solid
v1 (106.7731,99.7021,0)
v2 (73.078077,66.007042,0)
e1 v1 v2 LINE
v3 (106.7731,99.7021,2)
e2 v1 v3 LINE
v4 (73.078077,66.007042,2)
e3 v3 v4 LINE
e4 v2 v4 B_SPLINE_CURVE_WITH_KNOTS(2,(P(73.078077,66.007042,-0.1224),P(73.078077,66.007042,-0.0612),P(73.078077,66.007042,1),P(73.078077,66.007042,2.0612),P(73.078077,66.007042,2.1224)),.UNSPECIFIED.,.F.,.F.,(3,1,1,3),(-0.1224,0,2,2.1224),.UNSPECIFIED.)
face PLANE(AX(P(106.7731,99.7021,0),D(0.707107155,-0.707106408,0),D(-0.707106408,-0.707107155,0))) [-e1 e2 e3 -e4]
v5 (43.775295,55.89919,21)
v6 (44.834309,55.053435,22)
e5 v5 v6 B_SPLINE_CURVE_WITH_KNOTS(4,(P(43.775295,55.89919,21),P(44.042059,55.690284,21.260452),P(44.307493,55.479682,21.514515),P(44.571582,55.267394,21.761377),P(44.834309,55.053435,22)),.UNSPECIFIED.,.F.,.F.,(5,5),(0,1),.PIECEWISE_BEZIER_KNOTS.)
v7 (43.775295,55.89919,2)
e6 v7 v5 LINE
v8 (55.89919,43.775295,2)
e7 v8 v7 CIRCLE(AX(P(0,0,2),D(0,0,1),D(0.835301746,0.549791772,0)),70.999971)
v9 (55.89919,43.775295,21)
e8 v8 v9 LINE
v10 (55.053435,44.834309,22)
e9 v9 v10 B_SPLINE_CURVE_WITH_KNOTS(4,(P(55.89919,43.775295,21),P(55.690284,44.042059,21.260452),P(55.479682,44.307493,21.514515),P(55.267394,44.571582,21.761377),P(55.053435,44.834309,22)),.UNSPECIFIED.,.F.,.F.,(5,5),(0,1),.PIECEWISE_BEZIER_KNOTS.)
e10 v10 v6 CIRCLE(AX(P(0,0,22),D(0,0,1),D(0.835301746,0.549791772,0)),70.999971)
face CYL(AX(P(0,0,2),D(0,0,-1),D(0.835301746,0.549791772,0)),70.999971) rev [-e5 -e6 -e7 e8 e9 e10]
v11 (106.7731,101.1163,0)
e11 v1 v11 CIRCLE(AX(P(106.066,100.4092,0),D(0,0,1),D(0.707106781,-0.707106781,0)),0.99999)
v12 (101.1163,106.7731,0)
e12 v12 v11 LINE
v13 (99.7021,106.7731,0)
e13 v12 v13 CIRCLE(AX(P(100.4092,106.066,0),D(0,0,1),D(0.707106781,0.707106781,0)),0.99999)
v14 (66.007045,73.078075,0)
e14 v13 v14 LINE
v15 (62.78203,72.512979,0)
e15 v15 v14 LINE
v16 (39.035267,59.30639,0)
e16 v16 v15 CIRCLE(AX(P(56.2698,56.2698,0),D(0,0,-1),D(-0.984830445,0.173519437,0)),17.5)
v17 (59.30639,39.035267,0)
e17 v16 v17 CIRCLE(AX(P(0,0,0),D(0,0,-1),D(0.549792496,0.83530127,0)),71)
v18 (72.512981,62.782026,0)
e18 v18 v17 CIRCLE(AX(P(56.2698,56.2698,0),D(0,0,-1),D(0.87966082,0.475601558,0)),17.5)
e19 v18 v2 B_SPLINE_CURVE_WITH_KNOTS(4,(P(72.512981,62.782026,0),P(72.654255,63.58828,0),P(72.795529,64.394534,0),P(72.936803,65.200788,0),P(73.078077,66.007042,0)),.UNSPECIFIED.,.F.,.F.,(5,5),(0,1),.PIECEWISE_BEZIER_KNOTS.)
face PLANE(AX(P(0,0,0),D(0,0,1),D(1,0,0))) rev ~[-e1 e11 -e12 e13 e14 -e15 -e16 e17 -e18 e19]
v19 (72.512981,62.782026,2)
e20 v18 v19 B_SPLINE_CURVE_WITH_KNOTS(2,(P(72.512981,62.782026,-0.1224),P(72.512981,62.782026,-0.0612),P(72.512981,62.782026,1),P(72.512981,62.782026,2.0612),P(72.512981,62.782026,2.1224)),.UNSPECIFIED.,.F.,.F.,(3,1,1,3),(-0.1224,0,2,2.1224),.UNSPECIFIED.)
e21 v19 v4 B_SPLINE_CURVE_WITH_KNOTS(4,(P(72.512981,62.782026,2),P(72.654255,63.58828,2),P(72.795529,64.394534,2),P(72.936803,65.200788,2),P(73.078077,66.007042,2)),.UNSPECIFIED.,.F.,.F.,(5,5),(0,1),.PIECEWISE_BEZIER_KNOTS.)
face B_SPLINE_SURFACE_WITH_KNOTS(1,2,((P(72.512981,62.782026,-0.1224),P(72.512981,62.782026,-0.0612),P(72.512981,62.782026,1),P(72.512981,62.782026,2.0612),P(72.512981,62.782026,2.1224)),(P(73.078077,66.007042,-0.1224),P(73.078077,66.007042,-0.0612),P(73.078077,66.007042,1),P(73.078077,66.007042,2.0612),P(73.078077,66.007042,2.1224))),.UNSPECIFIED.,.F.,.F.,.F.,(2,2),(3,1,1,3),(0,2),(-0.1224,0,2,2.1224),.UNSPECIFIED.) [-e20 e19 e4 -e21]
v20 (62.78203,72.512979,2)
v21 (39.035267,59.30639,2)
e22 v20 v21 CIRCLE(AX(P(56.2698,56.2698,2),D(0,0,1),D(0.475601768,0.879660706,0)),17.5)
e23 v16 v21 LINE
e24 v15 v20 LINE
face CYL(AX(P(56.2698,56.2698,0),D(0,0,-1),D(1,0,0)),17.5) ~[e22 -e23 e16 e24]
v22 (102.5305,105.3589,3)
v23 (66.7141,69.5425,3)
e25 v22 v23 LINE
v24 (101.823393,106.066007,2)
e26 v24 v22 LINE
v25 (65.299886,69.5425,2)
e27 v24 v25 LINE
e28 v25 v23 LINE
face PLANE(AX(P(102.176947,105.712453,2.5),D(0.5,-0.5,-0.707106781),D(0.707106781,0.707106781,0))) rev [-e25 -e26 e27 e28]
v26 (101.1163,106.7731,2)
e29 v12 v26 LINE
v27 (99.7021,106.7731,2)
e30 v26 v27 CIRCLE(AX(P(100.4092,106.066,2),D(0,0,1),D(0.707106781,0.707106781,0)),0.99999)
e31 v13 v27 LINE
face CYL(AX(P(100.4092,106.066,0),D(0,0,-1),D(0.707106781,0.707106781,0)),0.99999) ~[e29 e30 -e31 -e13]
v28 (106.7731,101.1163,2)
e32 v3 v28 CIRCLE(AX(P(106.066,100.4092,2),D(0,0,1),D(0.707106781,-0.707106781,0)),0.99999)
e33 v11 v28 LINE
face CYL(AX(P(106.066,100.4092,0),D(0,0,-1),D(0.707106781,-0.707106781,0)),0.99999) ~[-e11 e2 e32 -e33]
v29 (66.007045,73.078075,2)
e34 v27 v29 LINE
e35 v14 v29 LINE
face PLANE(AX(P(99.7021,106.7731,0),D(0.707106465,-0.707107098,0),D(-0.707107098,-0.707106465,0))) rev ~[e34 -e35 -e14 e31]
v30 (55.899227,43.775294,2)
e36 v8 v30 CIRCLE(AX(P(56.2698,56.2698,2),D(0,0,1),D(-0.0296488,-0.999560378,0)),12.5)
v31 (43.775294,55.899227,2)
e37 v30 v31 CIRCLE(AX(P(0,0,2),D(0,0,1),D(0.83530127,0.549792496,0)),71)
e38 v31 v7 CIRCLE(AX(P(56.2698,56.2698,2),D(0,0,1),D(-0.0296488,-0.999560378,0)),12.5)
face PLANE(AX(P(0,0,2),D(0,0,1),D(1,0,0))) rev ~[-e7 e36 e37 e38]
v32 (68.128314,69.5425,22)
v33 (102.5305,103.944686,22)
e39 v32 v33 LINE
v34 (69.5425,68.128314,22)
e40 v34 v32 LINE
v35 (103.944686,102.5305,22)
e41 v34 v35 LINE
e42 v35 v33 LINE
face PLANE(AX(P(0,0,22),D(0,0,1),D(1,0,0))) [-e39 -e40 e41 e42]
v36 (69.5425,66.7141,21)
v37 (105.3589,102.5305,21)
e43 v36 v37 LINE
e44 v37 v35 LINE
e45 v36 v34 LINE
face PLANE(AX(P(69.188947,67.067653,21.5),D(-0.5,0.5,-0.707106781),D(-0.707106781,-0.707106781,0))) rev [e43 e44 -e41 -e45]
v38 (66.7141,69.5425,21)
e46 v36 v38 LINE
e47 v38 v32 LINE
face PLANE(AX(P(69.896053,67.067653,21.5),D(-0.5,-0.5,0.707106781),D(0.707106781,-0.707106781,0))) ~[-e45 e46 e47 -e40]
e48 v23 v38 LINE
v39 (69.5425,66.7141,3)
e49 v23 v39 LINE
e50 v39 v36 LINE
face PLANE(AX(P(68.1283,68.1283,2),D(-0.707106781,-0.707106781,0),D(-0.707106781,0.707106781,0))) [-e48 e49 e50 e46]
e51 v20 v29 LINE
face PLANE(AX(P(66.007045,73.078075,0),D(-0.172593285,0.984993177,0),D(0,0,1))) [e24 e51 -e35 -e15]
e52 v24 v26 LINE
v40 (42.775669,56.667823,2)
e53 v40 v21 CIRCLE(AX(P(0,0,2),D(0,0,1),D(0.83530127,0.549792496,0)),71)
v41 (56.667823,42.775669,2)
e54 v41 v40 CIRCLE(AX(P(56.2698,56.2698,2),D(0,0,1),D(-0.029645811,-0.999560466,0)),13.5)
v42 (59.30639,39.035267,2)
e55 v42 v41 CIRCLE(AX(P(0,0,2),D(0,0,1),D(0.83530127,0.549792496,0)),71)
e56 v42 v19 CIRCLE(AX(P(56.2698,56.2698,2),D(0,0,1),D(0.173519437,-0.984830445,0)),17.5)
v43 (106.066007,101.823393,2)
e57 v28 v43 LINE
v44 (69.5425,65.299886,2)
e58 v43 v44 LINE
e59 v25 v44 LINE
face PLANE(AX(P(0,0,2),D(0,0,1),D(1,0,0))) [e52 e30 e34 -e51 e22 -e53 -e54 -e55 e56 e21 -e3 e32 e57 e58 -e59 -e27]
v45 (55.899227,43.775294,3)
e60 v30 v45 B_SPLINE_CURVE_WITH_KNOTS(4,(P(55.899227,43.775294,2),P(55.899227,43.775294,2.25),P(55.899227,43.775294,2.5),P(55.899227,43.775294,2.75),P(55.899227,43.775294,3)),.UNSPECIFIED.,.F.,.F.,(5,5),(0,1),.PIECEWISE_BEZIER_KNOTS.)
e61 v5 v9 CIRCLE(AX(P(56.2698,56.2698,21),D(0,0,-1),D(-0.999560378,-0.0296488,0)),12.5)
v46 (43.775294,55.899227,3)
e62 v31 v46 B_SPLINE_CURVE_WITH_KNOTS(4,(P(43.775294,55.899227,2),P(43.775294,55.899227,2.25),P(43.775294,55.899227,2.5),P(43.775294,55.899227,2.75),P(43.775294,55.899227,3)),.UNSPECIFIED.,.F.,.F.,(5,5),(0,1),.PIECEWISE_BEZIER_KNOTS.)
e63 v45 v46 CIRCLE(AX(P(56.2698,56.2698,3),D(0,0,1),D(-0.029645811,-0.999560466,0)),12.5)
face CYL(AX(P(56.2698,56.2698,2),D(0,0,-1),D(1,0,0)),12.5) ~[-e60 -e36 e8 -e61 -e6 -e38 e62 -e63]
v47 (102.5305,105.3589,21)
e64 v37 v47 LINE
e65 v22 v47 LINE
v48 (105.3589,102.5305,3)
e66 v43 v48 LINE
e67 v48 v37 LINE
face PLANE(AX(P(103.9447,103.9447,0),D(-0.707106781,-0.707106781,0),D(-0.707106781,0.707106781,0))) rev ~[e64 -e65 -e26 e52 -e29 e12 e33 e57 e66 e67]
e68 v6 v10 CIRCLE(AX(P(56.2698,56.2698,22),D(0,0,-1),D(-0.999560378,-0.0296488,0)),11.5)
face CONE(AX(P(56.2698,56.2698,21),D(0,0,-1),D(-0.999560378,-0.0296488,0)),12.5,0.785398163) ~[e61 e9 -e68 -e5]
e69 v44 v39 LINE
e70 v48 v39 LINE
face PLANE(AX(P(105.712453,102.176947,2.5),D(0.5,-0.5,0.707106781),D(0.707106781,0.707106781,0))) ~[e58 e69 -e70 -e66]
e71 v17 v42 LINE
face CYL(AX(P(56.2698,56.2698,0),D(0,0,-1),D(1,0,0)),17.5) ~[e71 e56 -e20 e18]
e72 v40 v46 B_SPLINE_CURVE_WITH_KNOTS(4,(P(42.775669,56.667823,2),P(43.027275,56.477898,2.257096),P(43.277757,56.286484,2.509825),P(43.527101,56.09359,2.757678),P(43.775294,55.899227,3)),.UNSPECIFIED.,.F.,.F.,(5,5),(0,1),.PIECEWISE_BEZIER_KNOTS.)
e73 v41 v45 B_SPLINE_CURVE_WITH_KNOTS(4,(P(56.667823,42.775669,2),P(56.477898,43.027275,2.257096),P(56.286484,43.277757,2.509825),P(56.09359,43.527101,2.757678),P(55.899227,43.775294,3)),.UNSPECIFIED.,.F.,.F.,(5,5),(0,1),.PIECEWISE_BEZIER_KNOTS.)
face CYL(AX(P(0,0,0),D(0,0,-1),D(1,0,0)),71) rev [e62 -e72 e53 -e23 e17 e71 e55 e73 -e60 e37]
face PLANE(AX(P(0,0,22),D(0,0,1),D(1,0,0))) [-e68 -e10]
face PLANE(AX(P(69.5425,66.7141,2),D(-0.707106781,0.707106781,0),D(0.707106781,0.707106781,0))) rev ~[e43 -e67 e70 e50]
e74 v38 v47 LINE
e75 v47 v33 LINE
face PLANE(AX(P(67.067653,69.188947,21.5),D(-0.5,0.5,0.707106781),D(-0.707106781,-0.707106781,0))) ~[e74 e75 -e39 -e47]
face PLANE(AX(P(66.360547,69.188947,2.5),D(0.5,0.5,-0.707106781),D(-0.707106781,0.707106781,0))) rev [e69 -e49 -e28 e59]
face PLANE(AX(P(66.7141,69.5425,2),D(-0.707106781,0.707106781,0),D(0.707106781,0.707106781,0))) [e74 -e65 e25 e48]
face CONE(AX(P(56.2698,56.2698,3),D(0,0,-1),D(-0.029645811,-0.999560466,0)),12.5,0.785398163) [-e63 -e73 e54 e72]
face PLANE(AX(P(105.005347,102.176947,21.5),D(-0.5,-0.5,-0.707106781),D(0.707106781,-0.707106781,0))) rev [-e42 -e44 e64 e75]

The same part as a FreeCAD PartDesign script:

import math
import FreeCAD as App
import Part
import Sketcher

V = App.Vector
Q = App.Units.Quantity


def edges_at(feature, points):
    """Names of the edges that pass closest to the given points."""
    edges = feature.Shape.Edges
    near = lambda p: min(range(len(edges)), key=lambda i: edges[i].distToShape(Part.Vertex(*p))[0])
    return sorted({f"Edge{near(p) + 1}" for p in points})

doc = App.newDocument("Part")
body = doc.addObject("PartDesign::Body", "Body")

# Sketch on XY plane
sketch1 = body.newObject("Sketcher::SketchObject", "Sketch")
sketch1.AttachmentSupport = (doc.getObject("XY_Plane"), [""])
sketch1.MapMode = "FlatFace"
sketch1.addGeometry([
    Part.ArcOfCircle(Part.Circle(V(56.3, 56.3, 0), V(0, 0, 1), 17.5), math.radians(-80), math.radians(28)),  # 0
    Part.LineSegment(V(71.7, 64.6, 0), V(106.8, 99.7, 0)),  # 1
    Part.ArcOfCircle(Part.Circle(V(106.1, 100.4, 0), V(0, 0, 1), 1), math.radians(-45), math.radians(45)),  # 2
    Part.LineSegment(V(106.8, 101.1, 0), V(101.1, 106.8, 0)),  # 3
    Part.ArcOfCircle(Part.Circle(V(100.4, 106.1, 0), V(0, 0, 1), 1), math.radians(45), math.radians(135)),  # 4
    Part.LineSegment(V(99.7, 106.8, 0), V(64.6, 71.7, 0)),  # 5
    Part.ArcOfCircle(Part.Circle(V(56.3, 56.3, 0), V(0, 0, 1), 17.5), math.radians(62), math.radians(170)),  # 6
    Part.ArcOfCircle(Part.Circle(V(0, 0, 0), V(0, 0, 1), 71), math.radians(33), math.radians(57)),  # 7
], False)
sketch1.addConstraint([
    Sketcher.Constraint("Coincident", 0, 2, 1, 1),
    Sketcher.Constraint("Tangent", 1, 2, 2, 1),
    Sketcher.Constraint("Tangent", 2, 2, 3, 1),
    Sketcher.Constraint("Tangent", 3, 2, 4, 1),
    Sketcher.Constraint("Tangent", 4, 2, 5, 1),
    Sketcher.Constraint("Coincident", 5, 2, 6, 1),
    Sketcher.Constraint("Coincident", 6, 2, 7, 2),
    Sketcher.Constraint("Coincident", 7, 1, 0, 1),
    Sketcher.Constraint("Coincident", 7, 3, -1, 1),
    Sketcher.Constraint("Coincident", 6, 3, 0, 3),
    Sketcher.Constraint("Equal", 2, 4),
    Sketcher.Constraint("Equal", 0, 6),
    Sketcher.Constraint("Perpendicular", 1, 3),
    Sketcher.Constraint("Perpendicular", 3, 5),
    Sketcher.Constraint("Horizontal", 3, 2, 4, 2),
    Sketcher.Constraint("Equal", 1, 5),
    Sketcher.Constraint("Radius", 2, 1.0),
    Sketcher.Constraint("Radius", 7, 71.0),
    Sketcher.Constraint("Radius", 0, 17.5),
    Sketcher.Constraint("Distance", 3, 8.0),
    Sketcher.Constraint("Distance", 1, 49.652),
    Sketcher.Constraint("DistanceX", -1, 1, 2, 3, 106.066),
    Sketcher.Constraint("DistanceY", -1, 1, 4, 3, 106.066),
])
pad1 = body.newObject("PartDesign::Pad", "Pad")
pad1.Profile = sketch1
pad1.Length = 2

# Sketch on XY plane
sketch2 = body.newObject("Sketcher::SketchObject", "Sketch001")
sketch2.AttachmentSupport = (doc.getObject("XY_Plane"), [""])
sketch2.MapMode = "FlatFace"
sketch2.AttachmentOffset = App.Placement(V(0, 0, 2), App.Rotation())
sketch2.addGeometry([
    Part.LineSegment(V(66.7, 69.5, 0), V(69.5, 66.7, 0)),  # 0
    Part.LineSegment(V(69.5, 66.7, 0), V(105.4, 102.5, 0)),  # 1
    Part.LineSegment(V(105.4, 102.5, 0), V(102.5, 105.4, 0)),  # 2
    Part.LineSegment(V(102.5, 105.4, 0), V(66.7, 69.5, 0)),  # 3
    Part.ArcOfCircle(Part.Circle(V(56.3, 56.3, 0), V(0, 0, 1), 12.5), math.radians(-92), math.radians(182)),  # 4
    Part.ArcOfCircle(Part.Circle(V(0, 0, 0), V(0, 0, 1), 71), math.radians(38.06), math.radians(51.94)),  # 5
], False)
sketch2.addConstraint([
    Sketcher.Constraint("Coincident", 0, 2, 1, 1),
    Sketcher.Constraint("Coincident", 1, 2, 2, 1),
    Sketcher.Constraint("Coincident", 2, 2, 3, 1),
    Sketcher.Constraint("Coincident", 3, 2, 0, 1),
    Sketcher.Constraint("Coincident", 4, 1, 5, 1),
    Sketcher.Constraint("Coincident", 5, 2, 4, 2),
    Sketcher.Constraint("Coincident", 5, 3, -1, 1),
    Sketcher.Constraint("Perpendicular", 0, 1),
    Sketcher.Constraint("Perpendicular", 1, 2),
    Sketcher.Constraint("Perpendicular", 2, 3),
    Sketcher.Constraint("Radius", 4, 12.5),
    Sketcher.Constraint("Radius", 5, 71.0),
    Sketcher.Constraint("Angle", 0, Q("-45 deg")),
    Sketcher.Constraint("Distance", 0, 4.0),
    Sketcher.Constraint("Distance", 1, 50.652),
    Sketcher.Constraint("DistanceY", -1, 1, 0, 2, 66.714),
    Sketcher.Constraint("DistanceX", -1, 1, 1, 2, 105.359),
    Sketcher.Constraint("DistanceX", 4, 3, 1, 2, 49.089),
    Sketcher.Constraint("DistanceY", 4, 3, 2, 2, 49.089),
])
pad2 = body.newObject("PartDesign::Pad", "Pad001")
pad2.Profile = sketch2
pad2.Length = 20
doc.recompute()

chamfer = body.newObject("PartDesign::Chamfer", "Chamfer")
chamfer.Base = (pad2, edges_at(pad2, [
    (68.128, 68.128, 2),
    (65.109, 65.109, 22),
    (84.622, 87.451, 22),
    (87.451, 84.622, 22),
    (68.128, 68.128, 22),
    (103.945, 103.945, 22),
    (84.622, 87.451, 2),
    (87.451, 84.622, 2),
    (65.109, 65.109, 2),
]))
chamfer.Size = 1
doc.recompute()

chamfer2 = body.newObject("PartDesign::Chamfer", "Chamfer001")
chamfer2.Base = (chamfer, edges_at(chamfer, [(64.593, 71.664, 1), (71.664, 64.593, 1)]))
chamfer2.Size = 2

doc.recompute()
